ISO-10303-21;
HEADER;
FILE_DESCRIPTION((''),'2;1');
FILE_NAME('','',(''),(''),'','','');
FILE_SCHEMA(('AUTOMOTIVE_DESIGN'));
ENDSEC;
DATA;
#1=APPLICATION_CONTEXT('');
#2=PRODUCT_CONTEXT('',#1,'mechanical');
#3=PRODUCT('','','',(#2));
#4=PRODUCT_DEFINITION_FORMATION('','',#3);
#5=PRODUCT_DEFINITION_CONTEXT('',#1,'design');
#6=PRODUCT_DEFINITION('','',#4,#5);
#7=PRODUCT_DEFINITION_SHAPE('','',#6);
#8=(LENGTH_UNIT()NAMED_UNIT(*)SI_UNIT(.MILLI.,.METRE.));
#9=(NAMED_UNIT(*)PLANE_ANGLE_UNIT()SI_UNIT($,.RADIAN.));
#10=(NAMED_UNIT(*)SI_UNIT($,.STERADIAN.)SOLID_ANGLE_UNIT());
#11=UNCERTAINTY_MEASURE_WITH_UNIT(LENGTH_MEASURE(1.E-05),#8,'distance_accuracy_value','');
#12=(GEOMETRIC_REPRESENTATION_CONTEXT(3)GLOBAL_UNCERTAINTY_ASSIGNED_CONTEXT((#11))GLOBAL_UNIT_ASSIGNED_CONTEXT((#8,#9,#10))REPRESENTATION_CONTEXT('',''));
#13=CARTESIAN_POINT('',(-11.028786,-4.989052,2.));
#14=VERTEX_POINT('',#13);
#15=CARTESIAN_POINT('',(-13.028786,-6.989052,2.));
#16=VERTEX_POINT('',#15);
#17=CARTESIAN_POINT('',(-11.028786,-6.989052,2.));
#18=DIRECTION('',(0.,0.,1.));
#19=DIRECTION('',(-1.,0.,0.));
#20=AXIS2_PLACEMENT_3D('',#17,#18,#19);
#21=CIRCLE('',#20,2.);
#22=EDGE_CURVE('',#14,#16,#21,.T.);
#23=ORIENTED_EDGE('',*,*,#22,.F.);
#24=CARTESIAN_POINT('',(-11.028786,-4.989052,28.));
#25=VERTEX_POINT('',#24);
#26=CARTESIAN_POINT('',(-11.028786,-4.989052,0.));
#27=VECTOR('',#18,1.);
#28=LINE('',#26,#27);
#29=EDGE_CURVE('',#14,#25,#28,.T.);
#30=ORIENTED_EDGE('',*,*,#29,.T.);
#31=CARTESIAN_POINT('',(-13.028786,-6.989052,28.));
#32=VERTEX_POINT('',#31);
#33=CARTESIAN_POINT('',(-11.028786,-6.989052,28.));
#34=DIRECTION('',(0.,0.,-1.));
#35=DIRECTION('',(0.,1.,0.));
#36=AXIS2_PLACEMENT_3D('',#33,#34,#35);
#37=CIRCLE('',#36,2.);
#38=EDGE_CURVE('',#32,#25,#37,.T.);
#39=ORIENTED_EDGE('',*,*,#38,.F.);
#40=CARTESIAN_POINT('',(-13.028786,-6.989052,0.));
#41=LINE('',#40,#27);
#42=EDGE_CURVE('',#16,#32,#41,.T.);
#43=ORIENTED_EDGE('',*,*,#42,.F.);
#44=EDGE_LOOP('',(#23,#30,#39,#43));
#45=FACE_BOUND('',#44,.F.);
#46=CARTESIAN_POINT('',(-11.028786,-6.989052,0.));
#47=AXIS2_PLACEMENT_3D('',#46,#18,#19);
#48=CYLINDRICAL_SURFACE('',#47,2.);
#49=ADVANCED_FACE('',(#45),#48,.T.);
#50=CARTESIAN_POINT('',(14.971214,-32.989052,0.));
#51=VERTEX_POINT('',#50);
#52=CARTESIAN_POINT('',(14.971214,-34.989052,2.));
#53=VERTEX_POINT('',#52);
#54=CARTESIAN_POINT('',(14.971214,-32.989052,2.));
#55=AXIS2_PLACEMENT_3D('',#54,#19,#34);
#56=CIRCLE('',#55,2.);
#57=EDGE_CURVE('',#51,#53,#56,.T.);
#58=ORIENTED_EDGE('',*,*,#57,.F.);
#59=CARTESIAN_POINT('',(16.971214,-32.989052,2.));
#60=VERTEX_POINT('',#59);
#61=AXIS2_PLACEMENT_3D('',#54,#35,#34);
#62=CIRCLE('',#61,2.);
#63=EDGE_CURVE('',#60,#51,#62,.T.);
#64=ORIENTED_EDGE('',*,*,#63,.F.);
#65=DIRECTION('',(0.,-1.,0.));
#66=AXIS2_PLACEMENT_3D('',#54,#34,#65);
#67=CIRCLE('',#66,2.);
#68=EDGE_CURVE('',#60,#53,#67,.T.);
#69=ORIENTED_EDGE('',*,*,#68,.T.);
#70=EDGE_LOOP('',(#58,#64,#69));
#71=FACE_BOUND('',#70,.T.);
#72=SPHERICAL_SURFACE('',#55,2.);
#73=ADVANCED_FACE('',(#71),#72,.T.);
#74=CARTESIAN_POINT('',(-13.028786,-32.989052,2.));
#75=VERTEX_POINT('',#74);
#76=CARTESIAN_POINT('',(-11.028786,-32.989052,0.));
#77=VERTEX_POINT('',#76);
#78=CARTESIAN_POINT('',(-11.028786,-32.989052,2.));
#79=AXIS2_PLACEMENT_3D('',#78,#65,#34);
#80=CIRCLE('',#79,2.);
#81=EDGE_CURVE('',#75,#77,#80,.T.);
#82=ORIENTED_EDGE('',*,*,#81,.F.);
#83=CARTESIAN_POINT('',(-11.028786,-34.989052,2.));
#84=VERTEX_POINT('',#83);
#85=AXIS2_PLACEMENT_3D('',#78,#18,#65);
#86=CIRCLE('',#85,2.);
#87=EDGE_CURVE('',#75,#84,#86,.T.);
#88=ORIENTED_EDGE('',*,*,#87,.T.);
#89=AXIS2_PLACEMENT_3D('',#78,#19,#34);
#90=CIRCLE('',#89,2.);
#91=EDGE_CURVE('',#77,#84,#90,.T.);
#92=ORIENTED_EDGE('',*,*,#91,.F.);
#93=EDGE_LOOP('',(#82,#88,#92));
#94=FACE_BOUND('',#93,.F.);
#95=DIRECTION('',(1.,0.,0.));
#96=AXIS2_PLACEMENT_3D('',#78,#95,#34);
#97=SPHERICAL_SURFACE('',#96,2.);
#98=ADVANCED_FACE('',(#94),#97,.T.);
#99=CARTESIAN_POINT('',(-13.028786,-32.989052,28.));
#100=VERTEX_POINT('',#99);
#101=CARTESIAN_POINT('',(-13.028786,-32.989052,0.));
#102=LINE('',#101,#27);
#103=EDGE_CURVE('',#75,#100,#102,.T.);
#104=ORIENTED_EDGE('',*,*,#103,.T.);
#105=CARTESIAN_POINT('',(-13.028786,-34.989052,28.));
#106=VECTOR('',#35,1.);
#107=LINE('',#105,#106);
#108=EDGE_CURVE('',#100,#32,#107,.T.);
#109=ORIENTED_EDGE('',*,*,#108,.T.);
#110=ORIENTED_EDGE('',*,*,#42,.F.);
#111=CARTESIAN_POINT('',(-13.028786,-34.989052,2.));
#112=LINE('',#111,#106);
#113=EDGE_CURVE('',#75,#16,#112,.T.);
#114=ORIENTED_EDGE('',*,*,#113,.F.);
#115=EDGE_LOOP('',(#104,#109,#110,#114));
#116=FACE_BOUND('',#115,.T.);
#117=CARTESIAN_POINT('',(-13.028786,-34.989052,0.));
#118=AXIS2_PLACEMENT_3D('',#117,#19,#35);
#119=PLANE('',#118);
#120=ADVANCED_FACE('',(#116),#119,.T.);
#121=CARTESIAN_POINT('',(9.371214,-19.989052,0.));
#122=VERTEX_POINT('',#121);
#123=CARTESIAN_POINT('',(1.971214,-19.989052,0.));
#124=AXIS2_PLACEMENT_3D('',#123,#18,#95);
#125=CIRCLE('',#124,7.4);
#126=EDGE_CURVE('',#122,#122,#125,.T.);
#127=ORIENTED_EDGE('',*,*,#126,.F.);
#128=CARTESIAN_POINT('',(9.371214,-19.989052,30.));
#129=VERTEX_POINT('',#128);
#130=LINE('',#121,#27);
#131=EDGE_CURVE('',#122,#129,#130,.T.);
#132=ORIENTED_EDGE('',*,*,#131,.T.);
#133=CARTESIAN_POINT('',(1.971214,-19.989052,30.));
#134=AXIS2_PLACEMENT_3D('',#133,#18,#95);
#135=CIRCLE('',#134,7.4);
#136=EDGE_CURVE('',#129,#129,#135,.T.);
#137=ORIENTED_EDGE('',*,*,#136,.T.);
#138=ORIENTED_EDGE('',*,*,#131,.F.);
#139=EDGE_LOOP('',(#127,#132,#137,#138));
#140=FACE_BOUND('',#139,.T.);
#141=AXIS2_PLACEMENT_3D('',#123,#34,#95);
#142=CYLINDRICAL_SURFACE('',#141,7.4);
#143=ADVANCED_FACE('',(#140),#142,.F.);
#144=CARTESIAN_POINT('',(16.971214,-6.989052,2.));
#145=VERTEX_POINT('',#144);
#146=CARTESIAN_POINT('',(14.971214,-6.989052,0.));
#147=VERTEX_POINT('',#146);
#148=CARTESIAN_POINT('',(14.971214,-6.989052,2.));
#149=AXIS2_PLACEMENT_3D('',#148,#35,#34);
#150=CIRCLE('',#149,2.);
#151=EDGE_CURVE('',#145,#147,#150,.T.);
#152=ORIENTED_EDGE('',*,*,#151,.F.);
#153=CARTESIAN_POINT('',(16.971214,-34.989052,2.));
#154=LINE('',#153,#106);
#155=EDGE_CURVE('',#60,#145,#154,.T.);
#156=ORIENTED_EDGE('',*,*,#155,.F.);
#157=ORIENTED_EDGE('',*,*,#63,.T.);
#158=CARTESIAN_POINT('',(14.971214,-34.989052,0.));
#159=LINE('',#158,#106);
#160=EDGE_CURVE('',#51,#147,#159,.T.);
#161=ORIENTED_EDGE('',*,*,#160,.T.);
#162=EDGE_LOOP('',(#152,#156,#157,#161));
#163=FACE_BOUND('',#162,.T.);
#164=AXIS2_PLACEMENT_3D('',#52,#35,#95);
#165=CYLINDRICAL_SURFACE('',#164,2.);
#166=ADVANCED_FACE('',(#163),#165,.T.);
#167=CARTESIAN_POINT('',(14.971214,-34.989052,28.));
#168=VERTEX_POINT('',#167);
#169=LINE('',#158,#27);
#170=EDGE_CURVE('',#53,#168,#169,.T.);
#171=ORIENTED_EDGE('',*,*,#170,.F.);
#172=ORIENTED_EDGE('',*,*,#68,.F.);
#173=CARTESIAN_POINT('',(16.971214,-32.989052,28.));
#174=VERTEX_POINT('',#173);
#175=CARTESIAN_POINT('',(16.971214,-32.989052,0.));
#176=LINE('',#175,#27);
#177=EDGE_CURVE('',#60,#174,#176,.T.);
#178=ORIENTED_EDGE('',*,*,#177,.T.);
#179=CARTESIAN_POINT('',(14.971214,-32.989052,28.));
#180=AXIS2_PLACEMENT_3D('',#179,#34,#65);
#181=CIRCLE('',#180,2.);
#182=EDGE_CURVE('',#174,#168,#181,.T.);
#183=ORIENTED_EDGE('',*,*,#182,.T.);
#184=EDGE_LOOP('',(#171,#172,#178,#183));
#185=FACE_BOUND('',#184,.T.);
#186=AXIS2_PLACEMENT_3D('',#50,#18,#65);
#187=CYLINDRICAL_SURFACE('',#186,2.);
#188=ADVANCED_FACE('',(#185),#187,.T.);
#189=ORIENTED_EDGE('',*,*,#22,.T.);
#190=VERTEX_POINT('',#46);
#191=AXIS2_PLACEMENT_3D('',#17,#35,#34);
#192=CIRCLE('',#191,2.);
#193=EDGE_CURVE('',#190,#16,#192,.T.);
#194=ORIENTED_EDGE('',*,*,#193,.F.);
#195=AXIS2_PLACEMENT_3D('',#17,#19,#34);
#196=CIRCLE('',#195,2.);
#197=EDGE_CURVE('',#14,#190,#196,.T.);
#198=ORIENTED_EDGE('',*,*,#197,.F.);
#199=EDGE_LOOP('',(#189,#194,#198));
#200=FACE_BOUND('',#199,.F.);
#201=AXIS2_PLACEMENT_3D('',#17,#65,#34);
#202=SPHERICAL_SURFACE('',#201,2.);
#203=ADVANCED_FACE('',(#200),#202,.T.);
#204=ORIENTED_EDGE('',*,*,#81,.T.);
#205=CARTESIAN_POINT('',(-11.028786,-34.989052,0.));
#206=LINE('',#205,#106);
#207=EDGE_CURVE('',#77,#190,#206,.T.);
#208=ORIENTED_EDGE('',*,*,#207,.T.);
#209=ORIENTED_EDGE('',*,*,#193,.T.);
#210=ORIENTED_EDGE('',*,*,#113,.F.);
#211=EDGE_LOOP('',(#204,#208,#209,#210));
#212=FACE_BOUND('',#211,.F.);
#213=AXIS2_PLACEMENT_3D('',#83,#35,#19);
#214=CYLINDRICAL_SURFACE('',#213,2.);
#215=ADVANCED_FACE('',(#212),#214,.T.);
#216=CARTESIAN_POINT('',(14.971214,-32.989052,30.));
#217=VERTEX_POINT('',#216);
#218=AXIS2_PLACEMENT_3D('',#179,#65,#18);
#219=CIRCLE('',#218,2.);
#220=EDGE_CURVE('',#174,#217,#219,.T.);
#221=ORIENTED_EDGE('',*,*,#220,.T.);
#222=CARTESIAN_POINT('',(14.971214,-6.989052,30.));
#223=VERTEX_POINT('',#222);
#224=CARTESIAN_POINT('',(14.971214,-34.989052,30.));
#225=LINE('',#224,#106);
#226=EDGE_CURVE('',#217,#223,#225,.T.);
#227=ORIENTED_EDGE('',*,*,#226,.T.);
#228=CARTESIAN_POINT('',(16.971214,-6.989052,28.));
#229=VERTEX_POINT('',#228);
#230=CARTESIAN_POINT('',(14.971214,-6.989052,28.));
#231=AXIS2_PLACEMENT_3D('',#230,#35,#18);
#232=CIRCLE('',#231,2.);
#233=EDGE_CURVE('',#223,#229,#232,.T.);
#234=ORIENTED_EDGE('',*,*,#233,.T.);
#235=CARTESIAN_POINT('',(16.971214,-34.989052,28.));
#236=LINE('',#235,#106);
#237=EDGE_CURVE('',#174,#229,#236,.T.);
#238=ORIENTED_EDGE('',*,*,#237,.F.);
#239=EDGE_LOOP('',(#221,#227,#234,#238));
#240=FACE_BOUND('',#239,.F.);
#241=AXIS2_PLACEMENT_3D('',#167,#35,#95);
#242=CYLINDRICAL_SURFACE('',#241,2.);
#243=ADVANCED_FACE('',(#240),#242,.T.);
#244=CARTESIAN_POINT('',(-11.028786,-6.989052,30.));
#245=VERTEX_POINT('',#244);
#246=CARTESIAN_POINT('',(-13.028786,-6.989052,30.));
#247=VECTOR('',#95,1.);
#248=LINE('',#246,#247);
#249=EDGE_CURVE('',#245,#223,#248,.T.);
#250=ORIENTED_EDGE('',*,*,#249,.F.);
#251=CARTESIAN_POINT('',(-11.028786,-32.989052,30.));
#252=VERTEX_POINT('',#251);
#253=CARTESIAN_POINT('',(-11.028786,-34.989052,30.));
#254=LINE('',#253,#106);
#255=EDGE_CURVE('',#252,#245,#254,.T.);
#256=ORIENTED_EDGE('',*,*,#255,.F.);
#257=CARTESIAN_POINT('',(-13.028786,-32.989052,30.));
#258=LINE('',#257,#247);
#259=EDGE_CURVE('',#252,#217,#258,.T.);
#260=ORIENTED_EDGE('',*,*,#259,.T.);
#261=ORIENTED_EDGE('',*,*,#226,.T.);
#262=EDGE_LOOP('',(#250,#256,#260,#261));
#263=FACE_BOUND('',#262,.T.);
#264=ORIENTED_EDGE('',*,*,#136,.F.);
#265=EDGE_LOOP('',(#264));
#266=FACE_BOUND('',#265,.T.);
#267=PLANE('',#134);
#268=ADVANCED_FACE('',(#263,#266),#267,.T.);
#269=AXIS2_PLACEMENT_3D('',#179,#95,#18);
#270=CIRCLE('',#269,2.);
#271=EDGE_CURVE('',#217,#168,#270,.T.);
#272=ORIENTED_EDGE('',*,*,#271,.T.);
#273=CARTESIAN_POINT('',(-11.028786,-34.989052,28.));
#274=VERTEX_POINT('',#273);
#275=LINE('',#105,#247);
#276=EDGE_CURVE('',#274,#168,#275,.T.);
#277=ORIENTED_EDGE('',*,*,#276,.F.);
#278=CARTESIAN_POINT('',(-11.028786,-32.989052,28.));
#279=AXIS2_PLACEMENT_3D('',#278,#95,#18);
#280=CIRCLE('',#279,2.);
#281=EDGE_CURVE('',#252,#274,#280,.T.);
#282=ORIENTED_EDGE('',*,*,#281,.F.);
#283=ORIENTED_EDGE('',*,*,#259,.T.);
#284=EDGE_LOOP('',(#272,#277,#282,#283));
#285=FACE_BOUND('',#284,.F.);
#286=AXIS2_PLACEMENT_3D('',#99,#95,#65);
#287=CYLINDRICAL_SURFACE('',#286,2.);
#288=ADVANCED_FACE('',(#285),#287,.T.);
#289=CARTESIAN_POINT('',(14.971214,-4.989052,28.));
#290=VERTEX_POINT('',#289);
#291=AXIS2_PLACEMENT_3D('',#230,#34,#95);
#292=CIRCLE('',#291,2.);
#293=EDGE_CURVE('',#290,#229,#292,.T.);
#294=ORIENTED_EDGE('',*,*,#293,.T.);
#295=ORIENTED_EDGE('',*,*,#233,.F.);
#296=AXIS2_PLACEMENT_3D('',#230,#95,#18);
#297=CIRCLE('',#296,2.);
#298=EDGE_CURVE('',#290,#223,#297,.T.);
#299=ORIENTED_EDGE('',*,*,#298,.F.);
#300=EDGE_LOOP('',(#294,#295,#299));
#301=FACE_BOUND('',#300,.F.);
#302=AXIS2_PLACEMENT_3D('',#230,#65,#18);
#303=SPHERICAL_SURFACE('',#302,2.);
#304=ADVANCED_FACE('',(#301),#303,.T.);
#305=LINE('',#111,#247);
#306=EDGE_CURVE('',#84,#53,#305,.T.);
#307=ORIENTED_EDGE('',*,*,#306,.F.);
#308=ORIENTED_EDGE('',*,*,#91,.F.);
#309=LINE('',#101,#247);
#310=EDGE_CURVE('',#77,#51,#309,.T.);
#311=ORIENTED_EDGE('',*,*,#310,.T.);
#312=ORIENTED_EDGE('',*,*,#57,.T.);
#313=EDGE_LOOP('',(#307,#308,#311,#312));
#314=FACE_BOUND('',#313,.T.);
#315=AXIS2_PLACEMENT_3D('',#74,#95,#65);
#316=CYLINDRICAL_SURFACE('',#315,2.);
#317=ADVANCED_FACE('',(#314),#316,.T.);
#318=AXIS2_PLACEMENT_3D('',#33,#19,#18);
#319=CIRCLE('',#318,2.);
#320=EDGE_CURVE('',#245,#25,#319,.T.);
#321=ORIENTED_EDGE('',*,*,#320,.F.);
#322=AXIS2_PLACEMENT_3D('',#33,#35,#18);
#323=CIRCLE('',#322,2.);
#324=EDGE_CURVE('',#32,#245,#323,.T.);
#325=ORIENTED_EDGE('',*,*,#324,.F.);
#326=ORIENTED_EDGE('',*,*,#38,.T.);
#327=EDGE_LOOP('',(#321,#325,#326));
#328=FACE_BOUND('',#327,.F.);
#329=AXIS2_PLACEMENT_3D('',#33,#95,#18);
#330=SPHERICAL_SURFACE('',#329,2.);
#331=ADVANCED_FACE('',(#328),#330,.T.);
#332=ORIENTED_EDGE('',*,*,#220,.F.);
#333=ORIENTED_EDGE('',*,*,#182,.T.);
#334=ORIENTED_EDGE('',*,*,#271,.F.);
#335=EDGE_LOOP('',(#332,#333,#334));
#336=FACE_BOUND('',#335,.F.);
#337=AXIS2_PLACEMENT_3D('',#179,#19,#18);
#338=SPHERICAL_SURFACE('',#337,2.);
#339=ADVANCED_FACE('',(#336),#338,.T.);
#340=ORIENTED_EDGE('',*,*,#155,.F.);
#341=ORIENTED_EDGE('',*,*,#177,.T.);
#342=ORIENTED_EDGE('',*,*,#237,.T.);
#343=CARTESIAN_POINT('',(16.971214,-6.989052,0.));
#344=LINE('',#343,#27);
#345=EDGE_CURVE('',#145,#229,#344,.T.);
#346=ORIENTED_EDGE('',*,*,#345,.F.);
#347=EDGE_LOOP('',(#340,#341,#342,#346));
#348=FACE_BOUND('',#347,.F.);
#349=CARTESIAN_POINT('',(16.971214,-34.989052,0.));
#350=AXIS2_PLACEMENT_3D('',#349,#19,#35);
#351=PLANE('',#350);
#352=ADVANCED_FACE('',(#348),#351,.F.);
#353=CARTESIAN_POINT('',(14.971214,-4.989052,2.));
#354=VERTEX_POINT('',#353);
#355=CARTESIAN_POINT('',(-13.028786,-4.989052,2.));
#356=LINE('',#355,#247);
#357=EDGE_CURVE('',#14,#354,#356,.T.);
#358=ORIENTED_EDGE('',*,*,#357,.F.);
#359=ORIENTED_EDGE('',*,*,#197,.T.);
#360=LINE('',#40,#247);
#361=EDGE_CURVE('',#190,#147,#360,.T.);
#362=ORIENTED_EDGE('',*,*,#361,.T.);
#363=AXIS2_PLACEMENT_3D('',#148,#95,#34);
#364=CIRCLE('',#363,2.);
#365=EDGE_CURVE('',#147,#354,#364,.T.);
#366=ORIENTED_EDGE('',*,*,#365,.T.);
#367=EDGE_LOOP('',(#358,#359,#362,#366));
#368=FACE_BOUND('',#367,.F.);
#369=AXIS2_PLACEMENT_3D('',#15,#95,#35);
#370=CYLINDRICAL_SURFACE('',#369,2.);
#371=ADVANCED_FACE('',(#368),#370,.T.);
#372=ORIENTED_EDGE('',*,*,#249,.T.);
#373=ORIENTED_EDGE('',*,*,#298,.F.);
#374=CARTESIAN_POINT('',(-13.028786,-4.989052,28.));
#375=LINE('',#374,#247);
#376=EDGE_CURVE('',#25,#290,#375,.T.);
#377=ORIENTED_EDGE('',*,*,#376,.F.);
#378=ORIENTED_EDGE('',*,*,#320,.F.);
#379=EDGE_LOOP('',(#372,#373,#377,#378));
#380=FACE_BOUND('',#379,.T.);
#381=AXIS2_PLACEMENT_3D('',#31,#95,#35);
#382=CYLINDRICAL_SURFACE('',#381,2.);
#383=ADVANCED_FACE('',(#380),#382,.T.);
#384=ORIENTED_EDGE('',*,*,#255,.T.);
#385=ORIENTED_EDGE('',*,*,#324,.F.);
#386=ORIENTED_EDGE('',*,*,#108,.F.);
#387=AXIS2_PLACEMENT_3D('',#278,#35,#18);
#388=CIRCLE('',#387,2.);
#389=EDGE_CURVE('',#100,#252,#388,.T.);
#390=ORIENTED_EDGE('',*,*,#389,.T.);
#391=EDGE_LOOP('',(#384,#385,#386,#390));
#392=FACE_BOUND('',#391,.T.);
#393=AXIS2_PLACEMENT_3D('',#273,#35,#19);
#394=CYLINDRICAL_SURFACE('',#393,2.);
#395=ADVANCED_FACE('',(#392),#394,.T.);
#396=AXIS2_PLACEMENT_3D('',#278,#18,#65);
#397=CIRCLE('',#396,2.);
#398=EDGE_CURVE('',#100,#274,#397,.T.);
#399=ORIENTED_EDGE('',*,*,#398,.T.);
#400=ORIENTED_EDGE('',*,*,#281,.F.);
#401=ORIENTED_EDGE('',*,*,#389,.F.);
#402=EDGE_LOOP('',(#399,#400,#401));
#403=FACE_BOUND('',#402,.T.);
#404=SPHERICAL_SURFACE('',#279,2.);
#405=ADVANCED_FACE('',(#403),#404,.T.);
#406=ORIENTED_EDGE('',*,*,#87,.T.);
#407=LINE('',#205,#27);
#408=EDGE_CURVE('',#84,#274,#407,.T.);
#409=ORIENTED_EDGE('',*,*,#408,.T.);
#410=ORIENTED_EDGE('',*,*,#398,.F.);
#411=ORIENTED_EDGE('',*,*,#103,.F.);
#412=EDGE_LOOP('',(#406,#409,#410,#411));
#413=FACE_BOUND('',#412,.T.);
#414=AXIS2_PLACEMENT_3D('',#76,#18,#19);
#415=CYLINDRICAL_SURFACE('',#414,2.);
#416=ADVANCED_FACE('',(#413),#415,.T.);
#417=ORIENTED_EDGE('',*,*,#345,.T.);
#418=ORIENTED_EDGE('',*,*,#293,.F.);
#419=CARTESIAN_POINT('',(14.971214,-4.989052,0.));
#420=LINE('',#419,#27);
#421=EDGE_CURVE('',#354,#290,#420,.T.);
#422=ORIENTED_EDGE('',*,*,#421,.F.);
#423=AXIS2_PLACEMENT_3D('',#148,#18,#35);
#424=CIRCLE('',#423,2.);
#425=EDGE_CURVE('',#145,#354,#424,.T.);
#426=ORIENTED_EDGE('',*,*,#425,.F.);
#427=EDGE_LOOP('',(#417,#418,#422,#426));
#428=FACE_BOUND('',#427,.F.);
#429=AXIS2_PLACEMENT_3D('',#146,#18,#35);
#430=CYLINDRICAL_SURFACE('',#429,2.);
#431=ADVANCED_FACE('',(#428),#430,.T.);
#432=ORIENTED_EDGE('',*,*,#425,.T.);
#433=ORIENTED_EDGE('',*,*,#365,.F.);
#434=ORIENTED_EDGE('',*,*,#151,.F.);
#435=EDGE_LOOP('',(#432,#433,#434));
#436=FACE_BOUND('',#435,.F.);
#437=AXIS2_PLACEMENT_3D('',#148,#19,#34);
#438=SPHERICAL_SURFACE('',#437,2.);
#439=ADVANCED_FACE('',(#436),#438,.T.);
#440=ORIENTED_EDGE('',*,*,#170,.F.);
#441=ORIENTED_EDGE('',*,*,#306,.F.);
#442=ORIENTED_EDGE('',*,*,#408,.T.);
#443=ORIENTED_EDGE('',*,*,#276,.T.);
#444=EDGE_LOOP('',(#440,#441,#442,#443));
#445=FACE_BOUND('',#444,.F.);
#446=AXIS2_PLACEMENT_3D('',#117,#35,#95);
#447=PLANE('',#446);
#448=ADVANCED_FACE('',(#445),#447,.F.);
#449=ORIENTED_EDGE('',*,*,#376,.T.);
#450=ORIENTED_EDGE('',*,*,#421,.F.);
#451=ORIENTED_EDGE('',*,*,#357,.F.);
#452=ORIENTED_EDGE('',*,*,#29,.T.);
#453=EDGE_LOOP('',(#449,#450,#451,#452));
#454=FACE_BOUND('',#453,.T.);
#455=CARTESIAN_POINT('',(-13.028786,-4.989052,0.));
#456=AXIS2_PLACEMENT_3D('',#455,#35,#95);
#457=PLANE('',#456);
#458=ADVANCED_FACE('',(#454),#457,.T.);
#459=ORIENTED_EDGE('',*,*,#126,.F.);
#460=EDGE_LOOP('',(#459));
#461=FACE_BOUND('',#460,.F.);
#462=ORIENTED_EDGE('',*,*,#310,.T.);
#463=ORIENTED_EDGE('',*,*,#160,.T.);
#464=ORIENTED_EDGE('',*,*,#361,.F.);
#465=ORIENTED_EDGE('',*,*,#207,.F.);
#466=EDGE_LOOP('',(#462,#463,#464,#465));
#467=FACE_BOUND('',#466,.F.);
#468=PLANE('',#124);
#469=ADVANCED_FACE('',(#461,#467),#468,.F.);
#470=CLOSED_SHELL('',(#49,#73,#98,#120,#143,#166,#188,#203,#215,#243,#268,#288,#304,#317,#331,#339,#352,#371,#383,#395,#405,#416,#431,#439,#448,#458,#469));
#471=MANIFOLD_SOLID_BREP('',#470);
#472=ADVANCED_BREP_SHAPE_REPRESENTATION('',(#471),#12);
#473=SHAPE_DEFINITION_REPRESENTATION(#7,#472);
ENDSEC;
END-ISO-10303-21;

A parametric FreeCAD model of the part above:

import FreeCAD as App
import Part
import Sketcher

V = App.Vector


def edges_at(feature, points):
    """Names of the edges that pass closest to the given points."""
    edges = feature.Shape.Edges
    near = lambda p: min(range(len(edges)), key=lambda i: edges[i].distToShape(Part.Vertex(*p))[0])
    return sorted({f"Edge{near(p) + 1}" for p in points})


def add_polygon(sketch, points):
    """Adds a closed chain of lines whose ends are joined by coincident constraints."""
    first, n = sketch.GeometryCount, len(points)
    for a, b in zip(points, points[1:] + points[:1]):
        sketch.addGeometry(Part.LineSegment(App.Vector(*a, 0), App.Vector(*b, 0)), False)
    for i in range(n):
        sketch.addConstraint(Sketcher.Constraint("Coincident", first + i, 2, first + (i + 1) % n, 1))

doc = App.newDocument("Part")
params = doc.addObject("Spreadsheet::Sheet", "Params")
for row, (alias, value) in enumerate([
    ("sketch1_diameter", "14.8 mm"),
    ("sketch1_width", "30 mm"),
    ("pad1_length", "30 mm"),
    ("fillet_radius", "2 mm"),
], start=1):
    params.set(f"A{row}", alias)
    params.set(f"B{row}", "=" + value)
    params.setAlias(f"B{row}", alias)

body = doc.addObject("PartDesign::Body", "Body")

# Sketch on XY plane
sketch1 = body.newObject("Sketcher::SketchObject", "Sketch")
sketch1.AttachmentSupport = (doc.getObject("XY_Plane"), [""])
sketch1.MapMode = "FlatFace"
add_polygon(sketch1, [(-13.028786, -4.989052), (-13.028786, -34.989052), (16.971214, -34.989052), (16.971214, -4.989052)])  # lines 0-3
sketch1.addGeometry(Part.Circle(V(1.971214, -19.989052, 0), V(0, 0, 1), 7.4), False)  # 4
sketch1.addConstraint(Sketcher.Constraint("Vertical", 0))
sketch1.addConstraint(Sketcher.Constraint("Horizontal", 1))
sketch1.addConstraint(Sketcher.Constraint("Vertical", 2))
sketch1.addConstraint(Sketcher.Constraint("Horizontal", 3))
sketch1.addConstraint(Sketcher.Constraint("Equal", 3, 0))
sketch1.addConstraint(Sketcher.Constraint("Diameter", 4, 14.8))
sketch1.addConstraint(Sketcher.Constraint("DistanceX", 1, 1, 1, 2, 30.0))
sketch1.addConstraint(Sketcher.Constraint("DistanceX", 0, 2, 4, 3, 15.0))
sketch1.addConstraint(Sketcher.Constraint("DistanceY", 0, 2, 4, 3, 15.0))
sketch1.addConstraint(Sketcher.Constraint("DistanceX", -1, 1, 4, 3, 1.971214))
sketch1.addConstraint(Sketcher.Constraint("DistanceY", 4, 3, -1, 1, 19.989052))
sketch1.setExpression("Constraints[9]", "Params.sketch1_diameter")
sketch1.setExpression("Constraints[10]", "Params.sketch1_width")
pad1 = body.newObject("PartDesign::Pad", "Pad")
pad1.Profile = sketch1
pad1.setExpression("Length", "Params.pad1_length")
doc.recompute()

fillet = body.newObject("PartDesign::Fillet", "Fillet")
fillet.Base = (pad1, edges_at(pad1, [
    (1.971, -34.989, 30),
    (16.971, -19.989, 30),
    (1.971, -4.989, 30),
    (-13.029, -19.989, 30),
    (1.971, -34.989, 0),
    (-13.029, -19.989, 0),
    (1.971, -4.989, 0),
    (16.971, -19.989, 0),
    (-13.029, -4.989, 15),
    (16.971, -4.989, 15),
    (16.971, -34.989, 15),
    (-13.029, -34.989, 15),
]))
fillet.setExpression("Radius", "Params.fillet_radius")

doc.recompute()
